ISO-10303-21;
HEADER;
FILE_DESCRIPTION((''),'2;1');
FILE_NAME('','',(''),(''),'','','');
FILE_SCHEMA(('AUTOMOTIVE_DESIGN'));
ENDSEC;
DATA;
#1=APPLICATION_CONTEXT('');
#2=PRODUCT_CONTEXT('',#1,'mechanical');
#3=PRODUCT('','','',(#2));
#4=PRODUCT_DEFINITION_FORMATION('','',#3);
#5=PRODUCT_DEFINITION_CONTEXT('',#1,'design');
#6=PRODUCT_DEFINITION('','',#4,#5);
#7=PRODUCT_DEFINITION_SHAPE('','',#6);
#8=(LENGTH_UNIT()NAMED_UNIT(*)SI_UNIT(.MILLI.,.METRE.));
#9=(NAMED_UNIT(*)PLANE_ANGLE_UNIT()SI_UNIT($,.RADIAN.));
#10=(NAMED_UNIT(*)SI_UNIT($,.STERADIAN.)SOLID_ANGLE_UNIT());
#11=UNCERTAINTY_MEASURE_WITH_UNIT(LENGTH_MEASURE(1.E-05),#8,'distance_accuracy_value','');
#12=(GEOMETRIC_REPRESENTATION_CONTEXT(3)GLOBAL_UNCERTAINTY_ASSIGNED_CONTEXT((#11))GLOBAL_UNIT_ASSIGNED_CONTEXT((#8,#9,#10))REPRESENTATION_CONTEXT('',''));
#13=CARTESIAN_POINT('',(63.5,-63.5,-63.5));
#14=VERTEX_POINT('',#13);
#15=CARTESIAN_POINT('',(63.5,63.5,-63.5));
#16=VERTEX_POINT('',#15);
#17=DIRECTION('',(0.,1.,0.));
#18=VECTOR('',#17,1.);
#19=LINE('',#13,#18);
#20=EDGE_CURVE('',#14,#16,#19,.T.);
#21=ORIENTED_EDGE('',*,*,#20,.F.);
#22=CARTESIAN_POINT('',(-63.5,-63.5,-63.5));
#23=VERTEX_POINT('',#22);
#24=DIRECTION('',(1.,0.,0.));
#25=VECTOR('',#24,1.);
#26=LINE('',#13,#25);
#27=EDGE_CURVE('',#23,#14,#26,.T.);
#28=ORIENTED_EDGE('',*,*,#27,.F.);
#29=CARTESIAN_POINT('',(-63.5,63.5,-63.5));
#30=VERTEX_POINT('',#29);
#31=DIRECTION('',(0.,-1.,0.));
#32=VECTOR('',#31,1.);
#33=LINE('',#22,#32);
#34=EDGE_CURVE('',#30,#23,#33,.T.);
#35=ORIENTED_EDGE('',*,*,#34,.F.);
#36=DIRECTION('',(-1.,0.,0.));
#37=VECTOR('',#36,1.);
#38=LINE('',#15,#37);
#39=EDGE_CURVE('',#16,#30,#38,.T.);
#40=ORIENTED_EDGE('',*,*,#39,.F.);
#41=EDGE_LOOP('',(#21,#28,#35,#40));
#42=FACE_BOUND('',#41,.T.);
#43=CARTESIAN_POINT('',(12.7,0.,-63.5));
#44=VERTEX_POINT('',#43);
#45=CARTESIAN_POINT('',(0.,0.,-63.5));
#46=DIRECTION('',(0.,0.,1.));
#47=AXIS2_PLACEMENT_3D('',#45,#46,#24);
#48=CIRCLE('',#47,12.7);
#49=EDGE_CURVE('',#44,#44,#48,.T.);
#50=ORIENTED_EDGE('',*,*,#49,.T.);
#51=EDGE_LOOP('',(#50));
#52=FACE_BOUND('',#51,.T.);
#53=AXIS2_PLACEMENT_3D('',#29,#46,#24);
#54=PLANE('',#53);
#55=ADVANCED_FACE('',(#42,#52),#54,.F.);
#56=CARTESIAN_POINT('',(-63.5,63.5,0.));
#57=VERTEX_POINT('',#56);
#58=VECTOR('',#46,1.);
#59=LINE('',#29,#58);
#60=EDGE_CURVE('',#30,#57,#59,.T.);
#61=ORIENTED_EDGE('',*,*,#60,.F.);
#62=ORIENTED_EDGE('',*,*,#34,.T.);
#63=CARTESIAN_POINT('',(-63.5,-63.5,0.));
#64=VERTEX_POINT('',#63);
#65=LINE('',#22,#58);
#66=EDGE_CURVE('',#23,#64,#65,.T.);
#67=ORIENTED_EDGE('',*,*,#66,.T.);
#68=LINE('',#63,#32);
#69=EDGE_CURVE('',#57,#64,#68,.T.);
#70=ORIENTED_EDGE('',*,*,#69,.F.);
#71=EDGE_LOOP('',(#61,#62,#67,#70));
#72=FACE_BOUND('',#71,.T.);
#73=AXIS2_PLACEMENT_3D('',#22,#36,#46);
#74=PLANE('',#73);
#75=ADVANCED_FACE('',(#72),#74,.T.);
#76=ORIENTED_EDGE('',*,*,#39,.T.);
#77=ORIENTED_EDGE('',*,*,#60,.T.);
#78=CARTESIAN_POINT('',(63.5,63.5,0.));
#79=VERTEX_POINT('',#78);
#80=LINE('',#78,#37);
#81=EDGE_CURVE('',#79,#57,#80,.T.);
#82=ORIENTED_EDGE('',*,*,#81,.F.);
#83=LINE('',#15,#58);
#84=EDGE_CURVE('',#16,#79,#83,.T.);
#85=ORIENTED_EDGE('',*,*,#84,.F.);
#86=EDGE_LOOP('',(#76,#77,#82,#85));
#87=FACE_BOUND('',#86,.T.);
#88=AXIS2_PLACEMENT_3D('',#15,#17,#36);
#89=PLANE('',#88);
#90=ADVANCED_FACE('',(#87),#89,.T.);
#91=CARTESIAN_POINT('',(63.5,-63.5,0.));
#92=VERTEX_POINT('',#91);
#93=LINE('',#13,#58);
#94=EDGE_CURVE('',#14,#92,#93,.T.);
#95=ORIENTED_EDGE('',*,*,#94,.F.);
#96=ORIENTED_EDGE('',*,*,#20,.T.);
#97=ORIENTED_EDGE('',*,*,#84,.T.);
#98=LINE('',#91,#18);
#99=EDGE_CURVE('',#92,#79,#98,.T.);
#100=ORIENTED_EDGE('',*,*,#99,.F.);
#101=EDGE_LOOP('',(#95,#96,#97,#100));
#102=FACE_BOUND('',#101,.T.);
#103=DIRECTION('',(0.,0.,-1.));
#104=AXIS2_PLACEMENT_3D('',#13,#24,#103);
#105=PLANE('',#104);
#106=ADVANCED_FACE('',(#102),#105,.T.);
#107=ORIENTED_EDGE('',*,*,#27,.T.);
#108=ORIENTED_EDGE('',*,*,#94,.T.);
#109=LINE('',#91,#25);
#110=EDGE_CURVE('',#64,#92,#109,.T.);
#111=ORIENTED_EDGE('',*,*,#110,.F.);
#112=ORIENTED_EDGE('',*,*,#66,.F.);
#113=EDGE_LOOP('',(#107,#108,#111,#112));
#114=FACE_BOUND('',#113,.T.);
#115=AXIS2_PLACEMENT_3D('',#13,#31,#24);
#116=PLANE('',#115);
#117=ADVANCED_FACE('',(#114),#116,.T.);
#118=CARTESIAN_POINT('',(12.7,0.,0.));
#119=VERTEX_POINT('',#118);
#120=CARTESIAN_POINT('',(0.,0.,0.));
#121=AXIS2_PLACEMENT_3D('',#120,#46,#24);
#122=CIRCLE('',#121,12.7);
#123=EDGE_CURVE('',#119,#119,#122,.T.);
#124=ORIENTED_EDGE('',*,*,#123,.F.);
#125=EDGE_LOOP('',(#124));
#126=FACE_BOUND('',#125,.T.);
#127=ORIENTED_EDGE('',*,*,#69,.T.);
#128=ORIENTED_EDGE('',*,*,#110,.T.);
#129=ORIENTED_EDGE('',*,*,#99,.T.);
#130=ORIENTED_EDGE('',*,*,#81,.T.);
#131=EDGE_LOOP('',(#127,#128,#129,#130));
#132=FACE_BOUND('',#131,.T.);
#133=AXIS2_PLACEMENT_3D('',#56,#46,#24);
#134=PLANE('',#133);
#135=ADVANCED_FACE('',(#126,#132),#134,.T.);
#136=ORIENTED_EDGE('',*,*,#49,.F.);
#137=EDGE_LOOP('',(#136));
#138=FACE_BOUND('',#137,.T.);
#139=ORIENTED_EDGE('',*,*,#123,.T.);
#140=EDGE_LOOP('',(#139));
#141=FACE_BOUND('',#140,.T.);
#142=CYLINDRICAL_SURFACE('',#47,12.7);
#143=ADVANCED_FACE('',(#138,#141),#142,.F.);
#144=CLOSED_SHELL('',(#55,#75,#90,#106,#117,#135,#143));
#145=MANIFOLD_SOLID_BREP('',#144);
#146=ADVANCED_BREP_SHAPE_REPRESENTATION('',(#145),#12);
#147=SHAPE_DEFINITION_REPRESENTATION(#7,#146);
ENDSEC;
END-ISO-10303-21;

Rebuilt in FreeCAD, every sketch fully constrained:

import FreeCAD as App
import Part
import Sketcher
Q = App.Units.Quantity


def add_polygon(sketch, points):
    """Adds a closed chain of lines whose ends are joined by coincident constraints."""
    first, n = sketch.GeometryCount, len(points)
    for a, b in zip(points, points[1:] + points[:1]):
        sketch.addGeometry(Part.LineSegment(App.Vector(*a, 0), App.Vector(*b, 0)), False)
    for i in range(n):
        sketch.addConstraint(Sketcher.Constraint("Coincident", first + i, 2, first + (i + 1) % n, 1))

doc = App.newDocument("Part")
body = doc.addObject("PartDesign::Body", "Body")

# Sketch on XY plane
sketch1 = doc.addObject("Sketcher::SketchObject", "Sketch")
body.addObject(sketch1)
sketch1.AttachmentSupport = (doc.XY_Plane, [""])
sketch1.MapMode = "FlatFace"
add_polygon(sketch1, [(-64, 64), (-64, -64), (64, -64), (64, 64)])  # lines 0-3
sketch1.addConstraint([
    Sketcher.Constraint("Vertical", 0),
    Sketcher.Constraint("Horizontal", 1),
    Sketcher.Constraint("Vertical", 2),
    Sketcher.Constraint("Horizontal", 3),
    Sketcher.Constraint("Symmetric", 0, 2, 2, 2, -1, 1),
    Sketcher.Constraint("Equal", 3, 0),
    Sketcher.Constraint("DistanceX", 1, 1, 1, 2, Q("5 in")),
])
pad1 = doc.addObject("PartDesign::Pad", "Pad")
body.addObject(pad1)
pad1.Profile = sketch1
pad1.Length = Q("2.5 in")
pad1.Reversed = True

# Sketch on XY plane
sketch2 = doc.addObject("Sketcher::SketchObject", "Sketch001")
body.addObject(sketch2)
sketch2.AttachmentSupport = (doc.XY_Plane, [""])
sketch2.MapMode = "FlatFace"
sketch2.addGeometry(Part.Circle(App.Vector(0, 0, 0), App.Vector(0, 0, 1), 13), False)
sketch2.addConstraint([
    Sketcher.Constraint("Coincident", 0, 3, -1, 1),
    Sketcher.Constraint("Diameter", 0, Q("1 in")),
])
pocket1 = doc.addObject("PartDesign::Pocket", "Pocket")
body.addObject(pocket1)
pocket1.Profile = sketch2
pocket1.Length = Q("2.5 in")

doc.recompute()
